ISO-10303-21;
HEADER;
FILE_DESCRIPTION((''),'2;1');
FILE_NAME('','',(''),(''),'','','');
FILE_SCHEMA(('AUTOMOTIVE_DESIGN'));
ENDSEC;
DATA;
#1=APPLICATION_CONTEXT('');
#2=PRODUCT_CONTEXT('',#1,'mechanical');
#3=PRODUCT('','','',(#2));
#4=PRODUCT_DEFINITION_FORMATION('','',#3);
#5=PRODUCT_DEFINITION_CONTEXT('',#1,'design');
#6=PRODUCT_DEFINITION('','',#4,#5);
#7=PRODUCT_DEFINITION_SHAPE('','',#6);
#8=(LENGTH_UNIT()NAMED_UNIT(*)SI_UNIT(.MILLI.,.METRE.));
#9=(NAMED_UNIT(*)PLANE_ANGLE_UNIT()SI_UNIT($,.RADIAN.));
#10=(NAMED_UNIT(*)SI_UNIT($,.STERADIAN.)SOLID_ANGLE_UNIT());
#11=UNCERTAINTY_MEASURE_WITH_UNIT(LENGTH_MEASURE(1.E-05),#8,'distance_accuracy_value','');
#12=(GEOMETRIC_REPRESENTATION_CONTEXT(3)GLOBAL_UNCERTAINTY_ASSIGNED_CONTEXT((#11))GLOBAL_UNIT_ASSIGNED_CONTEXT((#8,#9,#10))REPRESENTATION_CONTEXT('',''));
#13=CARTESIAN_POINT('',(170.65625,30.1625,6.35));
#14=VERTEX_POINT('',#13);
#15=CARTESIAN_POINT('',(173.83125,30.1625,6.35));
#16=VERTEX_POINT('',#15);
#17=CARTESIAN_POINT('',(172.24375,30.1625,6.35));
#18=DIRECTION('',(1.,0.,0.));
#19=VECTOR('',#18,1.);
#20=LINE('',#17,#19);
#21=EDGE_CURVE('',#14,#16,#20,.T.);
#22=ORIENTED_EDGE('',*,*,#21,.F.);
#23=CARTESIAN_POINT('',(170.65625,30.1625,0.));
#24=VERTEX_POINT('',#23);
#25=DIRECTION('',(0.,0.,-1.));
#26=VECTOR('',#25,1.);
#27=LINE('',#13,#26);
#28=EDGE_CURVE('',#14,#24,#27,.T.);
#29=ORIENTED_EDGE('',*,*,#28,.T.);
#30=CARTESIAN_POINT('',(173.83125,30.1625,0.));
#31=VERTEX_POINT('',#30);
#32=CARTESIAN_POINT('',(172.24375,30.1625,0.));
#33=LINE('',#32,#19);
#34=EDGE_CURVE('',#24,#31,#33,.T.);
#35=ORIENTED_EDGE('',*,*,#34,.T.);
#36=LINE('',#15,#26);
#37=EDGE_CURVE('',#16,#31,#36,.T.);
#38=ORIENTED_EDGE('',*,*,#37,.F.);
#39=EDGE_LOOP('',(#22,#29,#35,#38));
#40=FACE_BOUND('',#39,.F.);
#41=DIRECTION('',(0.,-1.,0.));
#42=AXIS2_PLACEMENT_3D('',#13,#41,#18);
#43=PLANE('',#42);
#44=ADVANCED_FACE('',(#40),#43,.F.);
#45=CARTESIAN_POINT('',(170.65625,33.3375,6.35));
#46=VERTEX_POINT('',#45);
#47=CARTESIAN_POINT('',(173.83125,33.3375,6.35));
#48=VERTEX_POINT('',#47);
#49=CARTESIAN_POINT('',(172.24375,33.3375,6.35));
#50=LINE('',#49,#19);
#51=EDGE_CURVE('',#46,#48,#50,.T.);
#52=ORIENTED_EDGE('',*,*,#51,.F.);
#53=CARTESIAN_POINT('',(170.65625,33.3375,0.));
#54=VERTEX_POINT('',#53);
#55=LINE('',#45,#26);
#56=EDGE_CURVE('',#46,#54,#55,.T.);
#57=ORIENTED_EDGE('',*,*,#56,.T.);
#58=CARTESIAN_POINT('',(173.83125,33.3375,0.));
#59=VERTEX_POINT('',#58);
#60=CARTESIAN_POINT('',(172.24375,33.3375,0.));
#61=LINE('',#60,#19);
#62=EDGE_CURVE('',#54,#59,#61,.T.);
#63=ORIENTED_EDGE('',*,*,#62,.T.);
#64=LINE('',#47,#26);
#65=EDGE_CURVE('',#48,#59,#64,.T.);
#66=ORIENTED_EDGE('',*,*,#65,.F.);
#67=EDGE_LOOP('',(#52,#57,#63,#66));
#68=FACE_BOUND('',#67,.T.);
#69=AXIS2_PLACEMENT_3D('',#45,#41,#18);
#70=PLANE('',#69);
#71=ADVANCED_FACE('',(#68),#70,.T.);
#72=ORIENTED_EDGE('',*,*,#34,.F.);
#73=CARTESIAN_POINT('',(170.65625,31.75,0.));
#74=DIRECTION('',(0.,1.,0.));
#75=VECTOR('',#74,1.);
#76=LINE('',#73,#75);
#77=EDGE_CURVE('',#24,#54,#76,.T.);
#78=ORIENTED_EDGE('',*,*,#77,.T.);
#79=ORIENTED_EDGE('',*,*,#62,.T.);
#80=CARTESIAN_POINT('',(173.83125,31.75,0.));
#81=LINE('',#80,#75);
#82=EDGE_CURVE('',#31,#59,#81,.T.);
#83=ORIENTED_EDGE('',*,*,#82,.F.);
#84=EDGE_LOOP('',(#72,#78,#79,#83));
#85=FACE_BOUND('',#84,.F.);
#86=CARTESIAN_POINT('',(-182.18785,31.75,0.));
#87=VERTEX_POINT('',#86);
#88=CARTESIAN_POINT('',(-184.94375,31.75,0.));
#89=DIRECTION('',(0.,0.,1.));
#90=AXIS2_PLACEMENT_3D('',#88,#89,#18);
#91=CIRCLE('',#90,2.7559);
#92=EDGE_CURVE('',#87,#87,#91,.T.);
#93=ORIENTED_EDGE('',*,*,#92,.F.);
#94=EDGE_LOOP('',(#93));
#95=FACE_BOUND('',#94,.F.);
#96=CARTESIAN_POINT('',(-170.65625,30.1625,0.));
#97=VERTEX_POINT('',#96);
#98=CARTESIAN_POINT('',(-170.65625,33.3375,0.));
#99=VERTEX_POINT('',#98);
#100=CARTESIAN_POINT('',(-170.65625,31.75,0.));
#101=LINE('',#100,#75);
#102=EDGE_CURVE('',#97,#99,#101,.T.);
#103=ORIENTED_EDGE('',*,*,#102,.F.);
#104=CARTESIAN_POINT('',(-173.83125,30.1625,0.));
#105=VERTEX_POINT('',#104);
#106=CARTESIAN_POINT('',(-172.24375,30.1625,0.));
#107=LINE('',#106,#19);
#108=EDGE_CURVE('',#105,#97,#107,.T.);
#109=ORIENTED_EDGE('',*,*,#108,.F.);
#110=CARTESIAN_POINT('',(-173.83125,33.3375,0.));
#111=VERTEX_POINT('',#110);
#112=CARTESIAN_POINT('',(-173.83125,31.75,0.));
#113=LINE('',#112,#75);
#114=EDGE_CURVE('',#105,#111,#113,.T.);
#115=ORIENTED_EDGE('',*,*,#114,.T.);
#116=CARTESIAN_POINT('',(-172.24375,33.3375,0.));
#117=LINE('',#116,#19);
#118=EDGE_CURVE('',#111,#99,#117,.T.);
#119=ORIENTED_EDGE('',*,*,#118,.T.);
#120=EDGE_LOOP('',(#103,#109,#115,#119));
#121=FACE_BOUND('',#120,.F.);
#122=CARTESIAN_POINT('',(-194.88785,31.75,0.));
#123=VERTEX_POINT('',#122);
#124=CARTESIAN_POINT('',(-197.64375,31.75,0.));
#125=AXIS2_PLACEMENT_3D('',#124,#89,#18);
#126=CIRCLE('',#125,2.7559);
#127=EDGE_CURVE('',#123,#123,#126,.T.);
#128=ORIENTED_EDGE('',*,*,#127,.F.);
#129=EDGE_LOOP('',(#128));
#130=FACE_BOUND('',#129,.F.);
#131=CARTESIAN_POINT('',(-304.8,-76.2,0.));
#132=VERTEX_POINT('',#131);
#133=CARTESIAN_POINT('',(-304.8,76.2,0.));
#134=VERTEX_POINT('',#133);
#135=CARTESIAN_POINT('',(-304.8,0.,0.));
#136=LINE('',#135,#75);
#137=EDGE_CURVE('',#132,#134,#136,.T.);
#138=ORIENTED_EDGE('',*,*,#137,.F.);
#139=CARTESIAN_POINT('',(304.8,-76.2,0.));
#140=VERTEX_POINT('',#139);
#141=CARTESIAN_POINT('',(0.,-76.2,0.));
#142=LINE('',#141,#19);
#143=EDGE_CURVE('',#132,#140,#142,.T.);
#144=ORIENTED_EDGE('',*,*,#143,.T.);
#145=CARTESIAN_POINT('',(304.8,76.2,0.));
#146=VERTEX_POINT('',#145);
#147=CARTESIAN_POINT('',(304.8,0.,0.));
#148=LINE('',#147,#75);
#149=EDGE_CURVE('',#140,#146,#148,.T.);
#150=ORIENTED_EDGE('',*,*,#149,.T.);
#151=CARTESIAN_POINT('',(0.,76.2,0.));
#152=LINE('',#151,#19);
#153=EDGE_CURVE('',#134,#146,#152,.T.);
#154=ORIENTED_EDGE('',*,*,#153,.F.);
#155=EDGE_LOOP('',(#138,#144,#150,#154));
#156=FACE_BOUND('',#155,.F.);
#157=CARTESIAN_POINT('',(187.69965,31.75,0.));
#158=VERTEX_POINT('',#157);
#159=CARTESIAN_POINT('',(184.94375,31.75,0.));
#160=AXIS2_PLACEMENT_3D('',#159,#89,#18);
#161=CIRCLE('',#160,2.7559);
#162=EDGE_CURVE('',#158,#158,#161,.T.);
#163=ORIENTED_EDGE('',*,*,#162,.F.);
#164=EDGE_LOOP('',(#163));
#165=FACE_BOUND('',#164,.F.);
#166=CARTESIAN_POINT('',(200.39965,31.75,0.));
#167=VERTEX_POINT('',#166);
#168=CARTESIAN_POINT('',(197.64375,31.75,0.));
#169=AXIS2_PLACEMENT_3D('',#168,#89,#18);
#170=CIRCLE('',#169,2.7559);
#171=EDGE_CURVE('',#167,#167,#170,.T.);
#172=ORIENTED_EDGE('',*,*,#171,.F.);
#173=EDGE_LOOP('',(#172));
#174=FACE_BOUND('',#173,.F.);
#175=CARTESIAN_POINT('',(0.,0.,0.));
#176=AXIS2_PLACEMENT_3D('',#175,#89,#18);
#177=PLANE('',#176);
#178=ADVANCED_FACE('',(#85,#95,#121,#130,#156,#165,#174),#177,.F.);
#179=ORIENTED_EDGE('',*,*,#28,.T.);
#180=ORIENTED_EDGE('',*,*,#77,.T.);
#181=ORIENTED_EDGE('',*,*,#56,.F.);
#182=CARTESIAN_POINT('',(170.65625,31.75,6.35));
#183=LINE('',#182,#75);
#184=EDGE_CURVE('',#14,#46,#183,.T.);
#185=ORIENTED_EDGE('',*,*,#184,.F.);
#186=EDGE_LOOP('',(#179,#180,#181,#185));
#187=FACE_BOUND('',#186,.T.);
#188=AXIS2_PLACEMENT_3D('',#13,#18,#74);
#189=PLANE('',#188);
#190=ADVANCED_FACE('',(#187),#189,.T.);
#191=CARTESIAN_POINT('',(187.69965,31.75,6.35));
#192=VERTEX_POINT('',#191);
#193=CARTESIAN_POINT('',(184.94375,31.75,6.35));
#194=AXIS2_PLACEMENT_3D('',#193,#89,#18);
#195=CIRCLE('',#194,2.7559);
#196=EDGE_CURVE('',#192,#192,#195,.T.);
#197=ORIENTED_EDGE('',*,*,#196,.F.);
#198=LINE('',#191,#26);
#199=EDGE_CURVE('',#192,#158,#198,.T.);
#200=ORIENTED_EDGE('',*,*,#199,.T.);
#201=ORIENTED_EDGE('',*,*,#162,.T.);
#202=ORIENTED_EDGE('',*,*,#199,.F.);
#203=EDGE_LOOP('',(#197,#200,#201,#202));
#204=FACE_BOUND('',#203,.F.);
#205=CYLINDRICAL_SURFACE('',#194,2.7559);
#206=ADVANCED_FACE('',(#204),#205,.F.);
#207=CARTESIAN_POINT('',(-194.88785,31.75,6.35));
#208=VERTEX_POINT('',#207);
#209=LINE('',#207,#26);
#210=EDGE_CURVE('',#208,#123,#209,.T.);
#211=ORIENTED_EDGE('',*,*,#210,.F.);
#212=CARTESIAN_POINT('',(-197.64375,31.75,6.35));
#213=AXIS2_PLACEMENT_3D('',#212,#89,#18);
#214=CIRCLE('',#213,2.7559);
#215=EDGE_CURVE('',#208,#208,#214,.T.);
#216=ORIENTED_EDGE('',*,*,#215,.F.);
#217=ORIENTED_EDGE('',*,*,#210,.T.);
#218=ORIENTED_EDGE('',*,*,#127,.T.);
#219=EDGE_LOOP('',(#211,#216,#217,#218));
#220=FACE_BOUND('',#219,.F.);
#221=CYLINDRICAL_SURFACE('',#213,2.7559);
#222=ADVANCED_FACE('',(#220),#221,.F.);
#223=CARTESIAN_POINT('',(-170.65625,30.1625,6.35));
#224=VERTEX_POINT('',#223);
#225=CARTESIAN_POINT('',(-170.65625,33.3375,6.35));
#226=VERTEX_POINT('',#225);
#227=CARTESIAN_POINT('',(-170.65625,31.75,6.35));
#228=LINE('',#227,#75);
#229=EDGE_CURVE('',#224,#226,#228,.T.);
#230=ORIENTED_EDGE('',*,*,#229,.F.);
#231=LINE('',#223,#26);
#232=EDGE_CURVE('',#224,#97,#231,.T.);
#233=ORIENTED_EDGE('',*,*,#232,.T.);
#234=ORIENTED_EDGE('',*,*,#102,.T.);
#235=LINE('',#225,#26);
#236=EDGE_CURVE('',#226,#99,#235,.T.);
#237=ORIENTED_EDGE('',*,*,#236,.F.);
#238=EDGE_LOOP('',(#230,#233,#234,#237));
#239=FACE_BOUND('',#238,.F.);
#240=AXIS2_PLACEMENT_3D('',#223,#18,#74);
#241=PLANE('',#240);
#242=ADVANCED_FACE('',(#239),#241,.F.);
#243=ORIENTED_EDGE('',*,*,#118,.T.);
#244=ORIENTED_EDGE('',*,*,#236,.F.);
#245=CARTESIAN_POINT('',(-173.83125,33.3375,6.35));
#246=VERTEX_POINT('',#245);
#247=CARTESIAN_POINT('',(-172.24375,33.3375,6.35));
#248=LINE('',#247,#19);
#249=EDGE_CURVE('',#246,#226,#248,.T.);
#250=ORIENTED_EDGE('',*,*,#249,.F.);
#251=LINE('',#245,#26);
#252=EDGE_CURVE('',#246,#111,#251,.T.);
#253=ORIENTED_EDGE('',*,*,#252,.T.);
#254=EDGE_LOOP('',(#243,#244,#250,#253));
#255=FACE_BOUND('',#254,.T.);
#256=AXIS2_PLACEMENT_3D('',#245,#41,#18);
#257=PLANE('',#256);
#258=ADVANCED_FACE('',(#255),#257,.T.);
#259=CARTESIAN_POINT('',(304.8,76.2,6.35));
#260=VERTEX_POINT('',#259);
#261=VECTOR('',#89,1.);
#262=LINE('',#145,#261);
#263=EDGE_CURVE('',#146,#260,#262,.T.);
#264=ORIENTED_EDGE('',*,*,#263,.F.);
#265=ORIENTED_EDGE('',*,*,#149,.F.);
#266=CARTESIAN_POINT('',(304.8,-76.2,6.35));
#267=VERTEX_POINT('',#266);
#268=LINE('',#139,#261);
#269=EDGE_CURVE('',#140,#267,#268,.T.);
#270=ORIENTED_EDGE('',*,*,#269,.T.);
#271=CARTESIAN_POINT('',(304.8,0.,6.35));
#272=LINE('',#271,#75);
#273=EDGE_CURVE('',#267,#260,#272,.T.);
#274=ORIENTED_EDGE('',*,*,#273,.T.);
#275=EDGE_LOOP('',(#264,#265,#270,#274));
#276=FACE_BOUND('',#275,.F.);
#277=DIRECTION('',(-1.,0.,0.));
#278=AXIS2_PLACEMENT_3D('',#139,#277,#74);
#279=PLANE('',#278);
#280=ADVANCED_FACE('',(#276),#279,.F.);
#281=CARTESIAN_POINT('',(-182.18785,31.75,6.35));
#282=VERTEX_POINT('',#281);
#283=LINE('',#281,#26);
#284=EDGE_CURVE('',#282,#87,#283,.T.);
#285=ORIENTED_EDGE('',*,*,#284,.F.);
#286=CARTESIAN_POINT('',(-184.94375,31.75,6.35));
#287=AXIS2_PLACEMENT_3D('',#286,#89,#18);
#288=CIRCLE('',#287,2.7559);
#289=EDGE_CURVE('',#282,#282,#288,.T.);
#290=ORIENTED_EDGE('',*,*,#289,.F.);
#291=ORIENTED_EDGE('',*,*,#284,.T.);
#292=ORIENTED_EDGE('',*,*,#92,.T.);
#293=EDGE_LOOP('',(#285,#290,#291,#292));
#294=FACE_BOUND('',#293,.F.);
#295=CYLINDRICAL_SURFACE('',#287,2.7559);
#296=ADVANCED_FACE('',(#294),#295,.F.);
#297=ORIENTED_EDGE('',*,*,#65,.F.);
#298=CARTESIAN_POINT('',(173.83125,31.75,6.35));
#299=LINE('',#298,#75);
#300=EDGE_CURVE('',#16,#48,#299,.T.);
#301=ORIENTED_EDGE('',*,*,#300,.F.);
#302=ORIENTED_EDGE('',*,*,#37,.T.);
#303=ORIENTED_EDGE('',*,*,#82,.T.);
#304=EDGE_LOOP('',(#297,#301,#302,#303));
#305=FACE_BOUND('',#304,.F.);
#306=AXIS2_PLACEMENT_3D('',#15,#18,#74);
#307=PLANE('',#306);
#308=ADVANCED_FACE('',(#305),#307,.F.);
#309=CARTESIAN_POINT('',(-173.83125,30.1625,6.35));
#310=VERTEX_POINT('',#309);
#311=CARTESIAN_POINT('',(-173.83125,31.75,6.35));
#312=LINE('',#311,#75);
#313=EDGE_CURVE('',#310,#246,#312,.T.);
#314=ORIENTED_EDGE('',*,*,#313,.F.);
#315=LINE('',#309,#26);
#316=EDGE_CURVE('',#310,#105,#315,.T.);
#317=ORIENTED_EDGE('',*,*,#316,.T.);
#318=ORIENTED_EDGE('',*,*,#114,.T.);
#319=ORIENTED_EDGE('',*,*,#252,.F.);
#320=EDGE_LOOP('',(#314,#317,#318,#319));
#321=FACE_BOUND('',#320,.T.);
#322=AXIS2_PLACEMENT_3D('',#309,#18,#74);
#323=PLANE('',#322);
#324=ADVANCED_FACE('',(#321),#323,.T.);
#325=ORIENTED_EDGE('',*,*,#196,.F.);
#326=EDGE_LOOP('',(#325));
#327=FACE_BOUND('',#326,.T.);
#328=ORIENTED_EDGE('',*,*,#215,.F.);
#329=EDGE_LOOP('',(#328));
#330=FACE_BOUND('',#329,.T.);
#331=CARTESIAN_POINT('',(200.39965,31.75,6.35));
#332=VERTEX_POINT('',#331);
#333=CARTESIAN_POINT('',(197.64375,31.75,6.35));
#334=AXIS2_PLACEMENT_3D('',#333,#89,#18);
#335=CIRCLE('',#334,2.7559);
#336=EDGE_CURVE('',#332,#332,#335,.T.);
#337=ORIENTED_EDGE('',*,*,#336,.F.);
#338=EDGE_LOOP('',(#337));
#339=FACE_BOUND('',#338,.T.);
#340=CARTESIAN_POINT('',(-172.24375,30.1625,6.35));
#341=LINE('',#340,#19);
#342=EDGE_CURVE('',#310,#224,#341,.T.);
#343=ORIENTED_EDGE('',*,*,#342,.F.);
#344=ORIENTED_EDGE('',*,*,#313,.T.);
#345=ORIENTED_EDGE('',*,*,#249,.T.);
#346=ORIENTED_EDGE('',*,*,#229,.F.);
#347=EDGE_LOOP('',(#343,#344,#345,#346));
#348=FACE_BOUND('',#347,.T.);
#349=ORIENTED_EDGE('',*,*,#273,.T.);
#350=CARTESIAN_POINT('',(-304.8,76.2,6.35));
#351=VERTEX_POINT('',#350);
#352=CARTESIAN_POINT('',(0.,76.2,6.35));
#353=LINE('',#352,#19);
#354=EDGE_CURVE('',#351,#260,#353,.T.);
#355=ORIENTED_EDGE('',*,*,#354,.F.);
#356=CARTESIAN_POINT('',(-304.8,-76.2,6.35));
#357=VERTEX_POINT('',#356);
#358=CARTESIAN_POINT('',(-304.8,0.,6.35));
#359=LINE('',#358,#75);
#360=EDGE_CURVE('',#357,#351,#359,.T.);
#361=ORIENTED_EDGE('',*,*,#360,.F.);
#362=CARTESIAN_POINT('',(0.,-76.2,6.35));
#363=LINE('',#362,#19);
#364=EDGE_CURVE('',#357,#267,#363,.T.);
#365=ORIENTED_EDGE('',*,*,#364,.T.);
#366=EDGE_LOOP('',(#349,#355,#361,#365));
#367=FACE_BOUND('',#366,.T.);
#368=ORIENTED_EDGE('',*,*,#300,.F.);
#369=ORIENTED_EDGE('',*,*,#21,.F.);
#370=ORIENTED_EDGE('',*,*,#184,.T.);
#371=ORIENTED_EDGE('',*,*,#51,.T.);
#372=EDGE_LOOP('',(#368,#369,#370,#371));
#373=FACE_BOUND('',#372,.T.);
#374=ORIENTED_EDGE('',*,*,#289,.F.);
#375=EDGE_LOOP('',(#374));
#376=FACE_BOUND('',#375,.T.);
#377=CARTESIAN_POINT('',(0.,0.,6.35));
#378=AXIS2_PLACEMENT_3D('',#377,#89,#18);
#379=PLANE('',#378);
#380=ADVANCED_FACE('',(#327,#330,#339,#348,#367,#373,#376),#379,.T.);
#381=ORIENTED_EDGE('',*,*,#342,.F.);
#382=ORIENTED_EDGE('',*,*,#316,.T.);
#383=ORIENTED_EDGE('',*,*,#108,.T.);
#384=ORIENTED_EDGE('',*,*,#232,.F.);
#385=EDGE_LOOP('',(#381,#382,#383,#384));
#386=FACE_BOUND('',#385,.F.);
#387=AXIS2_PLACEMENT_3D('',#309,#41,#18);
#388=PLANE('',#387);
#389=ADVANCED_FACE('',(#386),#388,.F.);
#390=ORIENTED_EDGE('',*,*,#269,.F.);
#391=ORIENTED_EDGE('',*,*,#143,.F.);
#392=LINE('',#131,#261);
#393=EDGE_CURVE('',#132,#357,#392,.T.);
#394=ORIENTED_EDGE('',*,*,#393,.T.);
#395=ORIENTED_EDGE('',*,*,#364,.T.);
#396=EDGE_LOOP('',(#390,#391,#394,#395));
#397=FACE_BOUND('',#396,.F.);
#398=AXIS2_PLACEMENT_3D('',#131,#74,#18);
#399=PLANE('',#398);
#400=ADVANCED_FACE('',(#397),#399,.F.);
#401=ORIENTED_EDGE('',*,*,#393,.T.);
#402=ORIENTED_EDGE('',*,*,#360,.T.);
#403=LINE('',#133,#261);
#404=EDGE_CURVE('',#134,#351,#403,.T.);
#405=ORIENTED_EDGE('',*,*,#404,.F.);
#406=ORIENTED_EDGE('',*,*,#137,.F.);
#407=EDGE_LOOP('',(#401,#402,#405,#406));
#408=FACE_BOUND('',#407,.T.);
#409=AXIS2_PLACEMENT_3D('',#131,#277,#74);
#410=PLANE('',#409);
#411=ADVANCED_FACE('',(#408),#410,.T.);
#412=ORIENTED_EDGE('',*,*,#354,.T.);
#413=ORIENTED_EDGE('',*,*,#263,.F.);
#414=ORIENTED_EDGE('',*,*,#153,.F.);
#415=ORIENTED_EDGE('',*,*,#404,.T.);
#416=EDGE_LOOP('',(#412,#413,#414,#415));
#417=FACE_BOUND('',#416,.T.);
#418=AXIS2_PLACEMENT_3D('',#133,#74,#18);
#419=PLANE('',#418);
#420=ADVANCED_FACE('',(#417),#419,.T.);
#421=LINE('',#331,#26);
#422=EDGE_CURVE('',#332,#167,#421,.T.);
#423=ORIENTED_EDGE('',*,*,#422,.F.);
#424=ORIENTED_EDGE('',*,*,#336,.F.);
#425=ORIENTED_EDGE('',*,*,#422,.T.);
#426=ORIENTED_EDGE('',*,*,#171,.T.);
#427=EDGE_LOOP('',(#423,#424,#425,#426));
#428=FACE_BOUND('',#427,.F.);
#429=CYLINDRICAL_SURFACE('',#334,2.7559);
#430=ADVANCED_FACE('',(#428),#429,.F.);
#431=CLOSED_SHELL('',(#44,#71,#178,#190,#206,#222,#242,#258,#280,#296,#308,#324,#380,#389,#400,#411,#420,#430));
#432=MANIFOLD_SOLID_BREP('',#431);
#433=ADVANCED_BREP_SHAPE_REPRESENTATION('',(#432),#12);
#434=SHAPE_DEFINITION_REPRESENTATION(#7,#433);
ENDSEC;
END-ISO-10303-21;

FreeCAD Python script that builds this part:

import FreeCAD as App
import Part
import Sketcher
from FreeCAD import Vector
Q = App.Units.Quantity

doc = App.newDocument("Part")
body = doc.addObject("PartDesign::Body", "Body")

# Sketch on XY plane
sketch1 = body.newObject("Sketcher::SketchObject", "Sketch")
sketch1.AttachmentSupport = (doc.getObject("XY_Plane"), [""])
sketch1.MapMode = "FlatFace"
sketch1.addGeometry([
    Part.LineSegment(Vector(-305, 76, 0), Vector(-305, -76, 0)),
    Part.LineSegment(Vector(-305, -76, 0), Vector(305, -76, 0)),
    Part.LineSegment(Vector(305, -76, 0), Vector(305, 76, 0)),
    Part.LineSegment(Vector(305, 76, 0), Vector(-305, 76, 0)),
], False)
sketch1.addConstraint([
    Sketcher.Constraint("Coincident", 0, 2, 1, 1),
    Sketcher.Constraint("Coincident", 1, 2, 2, 1),
    Sketcher.Constraint("Coincident", 2, 2, 3, 1),
    Sketcher.Constraint("Coincident", 3, 2, 0, 1),
    Sketcher.Constraint("Vertical", 0),
    Sketcher.Constraint("Horizontal", 1),
    Sketcher.Constraint("Vertical", 2),
    Sketcher.Constraint("Horizontal", 3),
    Sketcher.Constraint("Symmetric", 0, 2, 2, 2, -1, 1),
    Sketcher.Constraint("DistanceX", 1, 1, 1, 2, Q("24 in")),
    Sketcher.Constraint("DistanceY", 0, 2, 0, 1, Q("6 in")),
])
pad1 = body.newObject("PartDesign::Pad", "Pad")
pad1.Profile = sketch1
pad1.Length = Q("0.25 in")

# Sketch on XY plane
sketch2 = body.newObject("Sketcher::SketchObject", "Sketch001")
sketch2.AttachmentSupport = (doc.getObject("XY_Plane"), [""])
sketch2.MapMode = "FlatFace"
sketch2.AttachmentOffset = App.Placement(Vector(0, 0, 0.25 * 25.4), App.Rotation())
sketch2.addGeometry([
    Part.Circle(Vector(-184.9, 31.8, 0), Vector(0, 0, 1), 2.8),  # 0
    Part.Circle(Vector(-197.6, 31.8, 0), Vector(0, 0, 1), 2.8),  # 1
    Part.Circle(Vector(184.9, 31.8, 0), Vector(0, 0, 1), 2.8),  # 2
    Part.Circle(Vector(197.6, 31.8, 0), Vector(0, 0, 1), 2.8),  # 3
    Part.LineSegment(Vector(-173.8, 33.3, 0), Vector(-173.8, 30.2, 0)),  # 4
    Part.LineSegment(Vector(-173.8, 30.2, 0), Vector(-170.7, 30.2, 0)),  # 5
    Part.LineSegment(Vector(-170.7, 30.2, 0), Vector(-170.7, 33.3, 0)),  # 6
    Part.LineSegment(Vector(-170.7, 33.3, 0), Vector(-173.8, 33.3, 0)),  # 7
    Part.LineSegment(Vector(170.7, 33.3, 0), Vector(170.7, 30.2, 0)),  # 8
    Part.LineSegment(Vector(170.7, 30.2, 0), Vector(173.8, 30.2, 0)),  # 9
    Part.LineSegment(Vector(173.8, 30.2, 0), Vector(173.8, 33.3, 0)),  # 10
    Part.LineSegment(Vector(173.8, 33.3, 0), Vector(170.7, 33.3, 0)),  # 11
], False)
sketch2.addConstraint([
    Sketcher.Constraint("Coincident", 4, 2, 5, 1),
    Sketcher.Constraint("Coincident", 5, 2, 6, 1),
    Sketcher.Constraint("Coincident", 6, 2, 7, 1),
    Sketcher.Constraint("Coincident", 7, 2, 4, 1),
    Sketcher.Constraint("Coincident", 8, 2, 9, 1),
    Sketcher.Constraint("Coincident", 9, 2, 10, 1),
    Sketcher.Constraint("Coincident", 10, 2, 11, 1),
    Sketcher.Constraint("Coincident", 11, 2, 8, 1),
    Sketcher.Constraint("Vertical", 4),
    Sketcher.Constraint("Horizontal", 5),
    Sketcher.Constraint("Vertical", 6),
    Sketcher.Constraint("Horizontal", 7),
    Sketcher.Constraint("Vertical", 8),
    Sketcher.Constraint("Horizontal", 9),
    Sketcher.Constraint("Vertical", 10),
    Sketcher.Constraint("Horizontal", 11),
    Sketcher.Constraint("Equal", 0, 1),
    Sketcher.Constraint("Equal", 1, 2),
    Sketcher.Constraint("Equal", 2, 3),
    Sketcher.Constraint("Symmetric", 0, 3, 2, 3, -2),
    Sketcher.Constraint("Symmetric", 1, 3, 3, 3, -2),
    Sketcher.Constraint("Symmetric", 5, 2, 8, 2, -2),
    Sketcher.Constraint("Symmetric", 7, 2, 10, 2, -2),
    Sketcher.Constraint("Horizontal", 0, 3, 1, 3),
    Sketcher.Constraint("Equal", 11, 4),
    Sketcher.Constraint("Diameter", 0, Q("0.217 in")),
    Sketcher.Constraint("DistanceX", 5, 2, 2, 3, Q("14 in")),
    Sketcher.Constraint("DistanceX", 1, 3, 0, 3, Q("0.5 in")),
    Sketcher.Constraint("DistanceX", 5, 1, 5, 2, Q("0.125 in")),
    Sketcher.Constraint("DistanceY", -1, 1, 0, 3, Q("1.25 in")),
    Sketcher.Constraint("DistanceX", 0, 3, -1, 1, Q("7.28125 in")),
    Sketcher.Constraint("DistanceY", -1, 1, 4, 2, Q("1.1875 in")),
])
pocket1 = body.newObject("PartDesign::Pocket", "Pocket")
pocket1.Profile = sketch2
pocket1.Length = Q("0.25 in")

doc.recompute()
